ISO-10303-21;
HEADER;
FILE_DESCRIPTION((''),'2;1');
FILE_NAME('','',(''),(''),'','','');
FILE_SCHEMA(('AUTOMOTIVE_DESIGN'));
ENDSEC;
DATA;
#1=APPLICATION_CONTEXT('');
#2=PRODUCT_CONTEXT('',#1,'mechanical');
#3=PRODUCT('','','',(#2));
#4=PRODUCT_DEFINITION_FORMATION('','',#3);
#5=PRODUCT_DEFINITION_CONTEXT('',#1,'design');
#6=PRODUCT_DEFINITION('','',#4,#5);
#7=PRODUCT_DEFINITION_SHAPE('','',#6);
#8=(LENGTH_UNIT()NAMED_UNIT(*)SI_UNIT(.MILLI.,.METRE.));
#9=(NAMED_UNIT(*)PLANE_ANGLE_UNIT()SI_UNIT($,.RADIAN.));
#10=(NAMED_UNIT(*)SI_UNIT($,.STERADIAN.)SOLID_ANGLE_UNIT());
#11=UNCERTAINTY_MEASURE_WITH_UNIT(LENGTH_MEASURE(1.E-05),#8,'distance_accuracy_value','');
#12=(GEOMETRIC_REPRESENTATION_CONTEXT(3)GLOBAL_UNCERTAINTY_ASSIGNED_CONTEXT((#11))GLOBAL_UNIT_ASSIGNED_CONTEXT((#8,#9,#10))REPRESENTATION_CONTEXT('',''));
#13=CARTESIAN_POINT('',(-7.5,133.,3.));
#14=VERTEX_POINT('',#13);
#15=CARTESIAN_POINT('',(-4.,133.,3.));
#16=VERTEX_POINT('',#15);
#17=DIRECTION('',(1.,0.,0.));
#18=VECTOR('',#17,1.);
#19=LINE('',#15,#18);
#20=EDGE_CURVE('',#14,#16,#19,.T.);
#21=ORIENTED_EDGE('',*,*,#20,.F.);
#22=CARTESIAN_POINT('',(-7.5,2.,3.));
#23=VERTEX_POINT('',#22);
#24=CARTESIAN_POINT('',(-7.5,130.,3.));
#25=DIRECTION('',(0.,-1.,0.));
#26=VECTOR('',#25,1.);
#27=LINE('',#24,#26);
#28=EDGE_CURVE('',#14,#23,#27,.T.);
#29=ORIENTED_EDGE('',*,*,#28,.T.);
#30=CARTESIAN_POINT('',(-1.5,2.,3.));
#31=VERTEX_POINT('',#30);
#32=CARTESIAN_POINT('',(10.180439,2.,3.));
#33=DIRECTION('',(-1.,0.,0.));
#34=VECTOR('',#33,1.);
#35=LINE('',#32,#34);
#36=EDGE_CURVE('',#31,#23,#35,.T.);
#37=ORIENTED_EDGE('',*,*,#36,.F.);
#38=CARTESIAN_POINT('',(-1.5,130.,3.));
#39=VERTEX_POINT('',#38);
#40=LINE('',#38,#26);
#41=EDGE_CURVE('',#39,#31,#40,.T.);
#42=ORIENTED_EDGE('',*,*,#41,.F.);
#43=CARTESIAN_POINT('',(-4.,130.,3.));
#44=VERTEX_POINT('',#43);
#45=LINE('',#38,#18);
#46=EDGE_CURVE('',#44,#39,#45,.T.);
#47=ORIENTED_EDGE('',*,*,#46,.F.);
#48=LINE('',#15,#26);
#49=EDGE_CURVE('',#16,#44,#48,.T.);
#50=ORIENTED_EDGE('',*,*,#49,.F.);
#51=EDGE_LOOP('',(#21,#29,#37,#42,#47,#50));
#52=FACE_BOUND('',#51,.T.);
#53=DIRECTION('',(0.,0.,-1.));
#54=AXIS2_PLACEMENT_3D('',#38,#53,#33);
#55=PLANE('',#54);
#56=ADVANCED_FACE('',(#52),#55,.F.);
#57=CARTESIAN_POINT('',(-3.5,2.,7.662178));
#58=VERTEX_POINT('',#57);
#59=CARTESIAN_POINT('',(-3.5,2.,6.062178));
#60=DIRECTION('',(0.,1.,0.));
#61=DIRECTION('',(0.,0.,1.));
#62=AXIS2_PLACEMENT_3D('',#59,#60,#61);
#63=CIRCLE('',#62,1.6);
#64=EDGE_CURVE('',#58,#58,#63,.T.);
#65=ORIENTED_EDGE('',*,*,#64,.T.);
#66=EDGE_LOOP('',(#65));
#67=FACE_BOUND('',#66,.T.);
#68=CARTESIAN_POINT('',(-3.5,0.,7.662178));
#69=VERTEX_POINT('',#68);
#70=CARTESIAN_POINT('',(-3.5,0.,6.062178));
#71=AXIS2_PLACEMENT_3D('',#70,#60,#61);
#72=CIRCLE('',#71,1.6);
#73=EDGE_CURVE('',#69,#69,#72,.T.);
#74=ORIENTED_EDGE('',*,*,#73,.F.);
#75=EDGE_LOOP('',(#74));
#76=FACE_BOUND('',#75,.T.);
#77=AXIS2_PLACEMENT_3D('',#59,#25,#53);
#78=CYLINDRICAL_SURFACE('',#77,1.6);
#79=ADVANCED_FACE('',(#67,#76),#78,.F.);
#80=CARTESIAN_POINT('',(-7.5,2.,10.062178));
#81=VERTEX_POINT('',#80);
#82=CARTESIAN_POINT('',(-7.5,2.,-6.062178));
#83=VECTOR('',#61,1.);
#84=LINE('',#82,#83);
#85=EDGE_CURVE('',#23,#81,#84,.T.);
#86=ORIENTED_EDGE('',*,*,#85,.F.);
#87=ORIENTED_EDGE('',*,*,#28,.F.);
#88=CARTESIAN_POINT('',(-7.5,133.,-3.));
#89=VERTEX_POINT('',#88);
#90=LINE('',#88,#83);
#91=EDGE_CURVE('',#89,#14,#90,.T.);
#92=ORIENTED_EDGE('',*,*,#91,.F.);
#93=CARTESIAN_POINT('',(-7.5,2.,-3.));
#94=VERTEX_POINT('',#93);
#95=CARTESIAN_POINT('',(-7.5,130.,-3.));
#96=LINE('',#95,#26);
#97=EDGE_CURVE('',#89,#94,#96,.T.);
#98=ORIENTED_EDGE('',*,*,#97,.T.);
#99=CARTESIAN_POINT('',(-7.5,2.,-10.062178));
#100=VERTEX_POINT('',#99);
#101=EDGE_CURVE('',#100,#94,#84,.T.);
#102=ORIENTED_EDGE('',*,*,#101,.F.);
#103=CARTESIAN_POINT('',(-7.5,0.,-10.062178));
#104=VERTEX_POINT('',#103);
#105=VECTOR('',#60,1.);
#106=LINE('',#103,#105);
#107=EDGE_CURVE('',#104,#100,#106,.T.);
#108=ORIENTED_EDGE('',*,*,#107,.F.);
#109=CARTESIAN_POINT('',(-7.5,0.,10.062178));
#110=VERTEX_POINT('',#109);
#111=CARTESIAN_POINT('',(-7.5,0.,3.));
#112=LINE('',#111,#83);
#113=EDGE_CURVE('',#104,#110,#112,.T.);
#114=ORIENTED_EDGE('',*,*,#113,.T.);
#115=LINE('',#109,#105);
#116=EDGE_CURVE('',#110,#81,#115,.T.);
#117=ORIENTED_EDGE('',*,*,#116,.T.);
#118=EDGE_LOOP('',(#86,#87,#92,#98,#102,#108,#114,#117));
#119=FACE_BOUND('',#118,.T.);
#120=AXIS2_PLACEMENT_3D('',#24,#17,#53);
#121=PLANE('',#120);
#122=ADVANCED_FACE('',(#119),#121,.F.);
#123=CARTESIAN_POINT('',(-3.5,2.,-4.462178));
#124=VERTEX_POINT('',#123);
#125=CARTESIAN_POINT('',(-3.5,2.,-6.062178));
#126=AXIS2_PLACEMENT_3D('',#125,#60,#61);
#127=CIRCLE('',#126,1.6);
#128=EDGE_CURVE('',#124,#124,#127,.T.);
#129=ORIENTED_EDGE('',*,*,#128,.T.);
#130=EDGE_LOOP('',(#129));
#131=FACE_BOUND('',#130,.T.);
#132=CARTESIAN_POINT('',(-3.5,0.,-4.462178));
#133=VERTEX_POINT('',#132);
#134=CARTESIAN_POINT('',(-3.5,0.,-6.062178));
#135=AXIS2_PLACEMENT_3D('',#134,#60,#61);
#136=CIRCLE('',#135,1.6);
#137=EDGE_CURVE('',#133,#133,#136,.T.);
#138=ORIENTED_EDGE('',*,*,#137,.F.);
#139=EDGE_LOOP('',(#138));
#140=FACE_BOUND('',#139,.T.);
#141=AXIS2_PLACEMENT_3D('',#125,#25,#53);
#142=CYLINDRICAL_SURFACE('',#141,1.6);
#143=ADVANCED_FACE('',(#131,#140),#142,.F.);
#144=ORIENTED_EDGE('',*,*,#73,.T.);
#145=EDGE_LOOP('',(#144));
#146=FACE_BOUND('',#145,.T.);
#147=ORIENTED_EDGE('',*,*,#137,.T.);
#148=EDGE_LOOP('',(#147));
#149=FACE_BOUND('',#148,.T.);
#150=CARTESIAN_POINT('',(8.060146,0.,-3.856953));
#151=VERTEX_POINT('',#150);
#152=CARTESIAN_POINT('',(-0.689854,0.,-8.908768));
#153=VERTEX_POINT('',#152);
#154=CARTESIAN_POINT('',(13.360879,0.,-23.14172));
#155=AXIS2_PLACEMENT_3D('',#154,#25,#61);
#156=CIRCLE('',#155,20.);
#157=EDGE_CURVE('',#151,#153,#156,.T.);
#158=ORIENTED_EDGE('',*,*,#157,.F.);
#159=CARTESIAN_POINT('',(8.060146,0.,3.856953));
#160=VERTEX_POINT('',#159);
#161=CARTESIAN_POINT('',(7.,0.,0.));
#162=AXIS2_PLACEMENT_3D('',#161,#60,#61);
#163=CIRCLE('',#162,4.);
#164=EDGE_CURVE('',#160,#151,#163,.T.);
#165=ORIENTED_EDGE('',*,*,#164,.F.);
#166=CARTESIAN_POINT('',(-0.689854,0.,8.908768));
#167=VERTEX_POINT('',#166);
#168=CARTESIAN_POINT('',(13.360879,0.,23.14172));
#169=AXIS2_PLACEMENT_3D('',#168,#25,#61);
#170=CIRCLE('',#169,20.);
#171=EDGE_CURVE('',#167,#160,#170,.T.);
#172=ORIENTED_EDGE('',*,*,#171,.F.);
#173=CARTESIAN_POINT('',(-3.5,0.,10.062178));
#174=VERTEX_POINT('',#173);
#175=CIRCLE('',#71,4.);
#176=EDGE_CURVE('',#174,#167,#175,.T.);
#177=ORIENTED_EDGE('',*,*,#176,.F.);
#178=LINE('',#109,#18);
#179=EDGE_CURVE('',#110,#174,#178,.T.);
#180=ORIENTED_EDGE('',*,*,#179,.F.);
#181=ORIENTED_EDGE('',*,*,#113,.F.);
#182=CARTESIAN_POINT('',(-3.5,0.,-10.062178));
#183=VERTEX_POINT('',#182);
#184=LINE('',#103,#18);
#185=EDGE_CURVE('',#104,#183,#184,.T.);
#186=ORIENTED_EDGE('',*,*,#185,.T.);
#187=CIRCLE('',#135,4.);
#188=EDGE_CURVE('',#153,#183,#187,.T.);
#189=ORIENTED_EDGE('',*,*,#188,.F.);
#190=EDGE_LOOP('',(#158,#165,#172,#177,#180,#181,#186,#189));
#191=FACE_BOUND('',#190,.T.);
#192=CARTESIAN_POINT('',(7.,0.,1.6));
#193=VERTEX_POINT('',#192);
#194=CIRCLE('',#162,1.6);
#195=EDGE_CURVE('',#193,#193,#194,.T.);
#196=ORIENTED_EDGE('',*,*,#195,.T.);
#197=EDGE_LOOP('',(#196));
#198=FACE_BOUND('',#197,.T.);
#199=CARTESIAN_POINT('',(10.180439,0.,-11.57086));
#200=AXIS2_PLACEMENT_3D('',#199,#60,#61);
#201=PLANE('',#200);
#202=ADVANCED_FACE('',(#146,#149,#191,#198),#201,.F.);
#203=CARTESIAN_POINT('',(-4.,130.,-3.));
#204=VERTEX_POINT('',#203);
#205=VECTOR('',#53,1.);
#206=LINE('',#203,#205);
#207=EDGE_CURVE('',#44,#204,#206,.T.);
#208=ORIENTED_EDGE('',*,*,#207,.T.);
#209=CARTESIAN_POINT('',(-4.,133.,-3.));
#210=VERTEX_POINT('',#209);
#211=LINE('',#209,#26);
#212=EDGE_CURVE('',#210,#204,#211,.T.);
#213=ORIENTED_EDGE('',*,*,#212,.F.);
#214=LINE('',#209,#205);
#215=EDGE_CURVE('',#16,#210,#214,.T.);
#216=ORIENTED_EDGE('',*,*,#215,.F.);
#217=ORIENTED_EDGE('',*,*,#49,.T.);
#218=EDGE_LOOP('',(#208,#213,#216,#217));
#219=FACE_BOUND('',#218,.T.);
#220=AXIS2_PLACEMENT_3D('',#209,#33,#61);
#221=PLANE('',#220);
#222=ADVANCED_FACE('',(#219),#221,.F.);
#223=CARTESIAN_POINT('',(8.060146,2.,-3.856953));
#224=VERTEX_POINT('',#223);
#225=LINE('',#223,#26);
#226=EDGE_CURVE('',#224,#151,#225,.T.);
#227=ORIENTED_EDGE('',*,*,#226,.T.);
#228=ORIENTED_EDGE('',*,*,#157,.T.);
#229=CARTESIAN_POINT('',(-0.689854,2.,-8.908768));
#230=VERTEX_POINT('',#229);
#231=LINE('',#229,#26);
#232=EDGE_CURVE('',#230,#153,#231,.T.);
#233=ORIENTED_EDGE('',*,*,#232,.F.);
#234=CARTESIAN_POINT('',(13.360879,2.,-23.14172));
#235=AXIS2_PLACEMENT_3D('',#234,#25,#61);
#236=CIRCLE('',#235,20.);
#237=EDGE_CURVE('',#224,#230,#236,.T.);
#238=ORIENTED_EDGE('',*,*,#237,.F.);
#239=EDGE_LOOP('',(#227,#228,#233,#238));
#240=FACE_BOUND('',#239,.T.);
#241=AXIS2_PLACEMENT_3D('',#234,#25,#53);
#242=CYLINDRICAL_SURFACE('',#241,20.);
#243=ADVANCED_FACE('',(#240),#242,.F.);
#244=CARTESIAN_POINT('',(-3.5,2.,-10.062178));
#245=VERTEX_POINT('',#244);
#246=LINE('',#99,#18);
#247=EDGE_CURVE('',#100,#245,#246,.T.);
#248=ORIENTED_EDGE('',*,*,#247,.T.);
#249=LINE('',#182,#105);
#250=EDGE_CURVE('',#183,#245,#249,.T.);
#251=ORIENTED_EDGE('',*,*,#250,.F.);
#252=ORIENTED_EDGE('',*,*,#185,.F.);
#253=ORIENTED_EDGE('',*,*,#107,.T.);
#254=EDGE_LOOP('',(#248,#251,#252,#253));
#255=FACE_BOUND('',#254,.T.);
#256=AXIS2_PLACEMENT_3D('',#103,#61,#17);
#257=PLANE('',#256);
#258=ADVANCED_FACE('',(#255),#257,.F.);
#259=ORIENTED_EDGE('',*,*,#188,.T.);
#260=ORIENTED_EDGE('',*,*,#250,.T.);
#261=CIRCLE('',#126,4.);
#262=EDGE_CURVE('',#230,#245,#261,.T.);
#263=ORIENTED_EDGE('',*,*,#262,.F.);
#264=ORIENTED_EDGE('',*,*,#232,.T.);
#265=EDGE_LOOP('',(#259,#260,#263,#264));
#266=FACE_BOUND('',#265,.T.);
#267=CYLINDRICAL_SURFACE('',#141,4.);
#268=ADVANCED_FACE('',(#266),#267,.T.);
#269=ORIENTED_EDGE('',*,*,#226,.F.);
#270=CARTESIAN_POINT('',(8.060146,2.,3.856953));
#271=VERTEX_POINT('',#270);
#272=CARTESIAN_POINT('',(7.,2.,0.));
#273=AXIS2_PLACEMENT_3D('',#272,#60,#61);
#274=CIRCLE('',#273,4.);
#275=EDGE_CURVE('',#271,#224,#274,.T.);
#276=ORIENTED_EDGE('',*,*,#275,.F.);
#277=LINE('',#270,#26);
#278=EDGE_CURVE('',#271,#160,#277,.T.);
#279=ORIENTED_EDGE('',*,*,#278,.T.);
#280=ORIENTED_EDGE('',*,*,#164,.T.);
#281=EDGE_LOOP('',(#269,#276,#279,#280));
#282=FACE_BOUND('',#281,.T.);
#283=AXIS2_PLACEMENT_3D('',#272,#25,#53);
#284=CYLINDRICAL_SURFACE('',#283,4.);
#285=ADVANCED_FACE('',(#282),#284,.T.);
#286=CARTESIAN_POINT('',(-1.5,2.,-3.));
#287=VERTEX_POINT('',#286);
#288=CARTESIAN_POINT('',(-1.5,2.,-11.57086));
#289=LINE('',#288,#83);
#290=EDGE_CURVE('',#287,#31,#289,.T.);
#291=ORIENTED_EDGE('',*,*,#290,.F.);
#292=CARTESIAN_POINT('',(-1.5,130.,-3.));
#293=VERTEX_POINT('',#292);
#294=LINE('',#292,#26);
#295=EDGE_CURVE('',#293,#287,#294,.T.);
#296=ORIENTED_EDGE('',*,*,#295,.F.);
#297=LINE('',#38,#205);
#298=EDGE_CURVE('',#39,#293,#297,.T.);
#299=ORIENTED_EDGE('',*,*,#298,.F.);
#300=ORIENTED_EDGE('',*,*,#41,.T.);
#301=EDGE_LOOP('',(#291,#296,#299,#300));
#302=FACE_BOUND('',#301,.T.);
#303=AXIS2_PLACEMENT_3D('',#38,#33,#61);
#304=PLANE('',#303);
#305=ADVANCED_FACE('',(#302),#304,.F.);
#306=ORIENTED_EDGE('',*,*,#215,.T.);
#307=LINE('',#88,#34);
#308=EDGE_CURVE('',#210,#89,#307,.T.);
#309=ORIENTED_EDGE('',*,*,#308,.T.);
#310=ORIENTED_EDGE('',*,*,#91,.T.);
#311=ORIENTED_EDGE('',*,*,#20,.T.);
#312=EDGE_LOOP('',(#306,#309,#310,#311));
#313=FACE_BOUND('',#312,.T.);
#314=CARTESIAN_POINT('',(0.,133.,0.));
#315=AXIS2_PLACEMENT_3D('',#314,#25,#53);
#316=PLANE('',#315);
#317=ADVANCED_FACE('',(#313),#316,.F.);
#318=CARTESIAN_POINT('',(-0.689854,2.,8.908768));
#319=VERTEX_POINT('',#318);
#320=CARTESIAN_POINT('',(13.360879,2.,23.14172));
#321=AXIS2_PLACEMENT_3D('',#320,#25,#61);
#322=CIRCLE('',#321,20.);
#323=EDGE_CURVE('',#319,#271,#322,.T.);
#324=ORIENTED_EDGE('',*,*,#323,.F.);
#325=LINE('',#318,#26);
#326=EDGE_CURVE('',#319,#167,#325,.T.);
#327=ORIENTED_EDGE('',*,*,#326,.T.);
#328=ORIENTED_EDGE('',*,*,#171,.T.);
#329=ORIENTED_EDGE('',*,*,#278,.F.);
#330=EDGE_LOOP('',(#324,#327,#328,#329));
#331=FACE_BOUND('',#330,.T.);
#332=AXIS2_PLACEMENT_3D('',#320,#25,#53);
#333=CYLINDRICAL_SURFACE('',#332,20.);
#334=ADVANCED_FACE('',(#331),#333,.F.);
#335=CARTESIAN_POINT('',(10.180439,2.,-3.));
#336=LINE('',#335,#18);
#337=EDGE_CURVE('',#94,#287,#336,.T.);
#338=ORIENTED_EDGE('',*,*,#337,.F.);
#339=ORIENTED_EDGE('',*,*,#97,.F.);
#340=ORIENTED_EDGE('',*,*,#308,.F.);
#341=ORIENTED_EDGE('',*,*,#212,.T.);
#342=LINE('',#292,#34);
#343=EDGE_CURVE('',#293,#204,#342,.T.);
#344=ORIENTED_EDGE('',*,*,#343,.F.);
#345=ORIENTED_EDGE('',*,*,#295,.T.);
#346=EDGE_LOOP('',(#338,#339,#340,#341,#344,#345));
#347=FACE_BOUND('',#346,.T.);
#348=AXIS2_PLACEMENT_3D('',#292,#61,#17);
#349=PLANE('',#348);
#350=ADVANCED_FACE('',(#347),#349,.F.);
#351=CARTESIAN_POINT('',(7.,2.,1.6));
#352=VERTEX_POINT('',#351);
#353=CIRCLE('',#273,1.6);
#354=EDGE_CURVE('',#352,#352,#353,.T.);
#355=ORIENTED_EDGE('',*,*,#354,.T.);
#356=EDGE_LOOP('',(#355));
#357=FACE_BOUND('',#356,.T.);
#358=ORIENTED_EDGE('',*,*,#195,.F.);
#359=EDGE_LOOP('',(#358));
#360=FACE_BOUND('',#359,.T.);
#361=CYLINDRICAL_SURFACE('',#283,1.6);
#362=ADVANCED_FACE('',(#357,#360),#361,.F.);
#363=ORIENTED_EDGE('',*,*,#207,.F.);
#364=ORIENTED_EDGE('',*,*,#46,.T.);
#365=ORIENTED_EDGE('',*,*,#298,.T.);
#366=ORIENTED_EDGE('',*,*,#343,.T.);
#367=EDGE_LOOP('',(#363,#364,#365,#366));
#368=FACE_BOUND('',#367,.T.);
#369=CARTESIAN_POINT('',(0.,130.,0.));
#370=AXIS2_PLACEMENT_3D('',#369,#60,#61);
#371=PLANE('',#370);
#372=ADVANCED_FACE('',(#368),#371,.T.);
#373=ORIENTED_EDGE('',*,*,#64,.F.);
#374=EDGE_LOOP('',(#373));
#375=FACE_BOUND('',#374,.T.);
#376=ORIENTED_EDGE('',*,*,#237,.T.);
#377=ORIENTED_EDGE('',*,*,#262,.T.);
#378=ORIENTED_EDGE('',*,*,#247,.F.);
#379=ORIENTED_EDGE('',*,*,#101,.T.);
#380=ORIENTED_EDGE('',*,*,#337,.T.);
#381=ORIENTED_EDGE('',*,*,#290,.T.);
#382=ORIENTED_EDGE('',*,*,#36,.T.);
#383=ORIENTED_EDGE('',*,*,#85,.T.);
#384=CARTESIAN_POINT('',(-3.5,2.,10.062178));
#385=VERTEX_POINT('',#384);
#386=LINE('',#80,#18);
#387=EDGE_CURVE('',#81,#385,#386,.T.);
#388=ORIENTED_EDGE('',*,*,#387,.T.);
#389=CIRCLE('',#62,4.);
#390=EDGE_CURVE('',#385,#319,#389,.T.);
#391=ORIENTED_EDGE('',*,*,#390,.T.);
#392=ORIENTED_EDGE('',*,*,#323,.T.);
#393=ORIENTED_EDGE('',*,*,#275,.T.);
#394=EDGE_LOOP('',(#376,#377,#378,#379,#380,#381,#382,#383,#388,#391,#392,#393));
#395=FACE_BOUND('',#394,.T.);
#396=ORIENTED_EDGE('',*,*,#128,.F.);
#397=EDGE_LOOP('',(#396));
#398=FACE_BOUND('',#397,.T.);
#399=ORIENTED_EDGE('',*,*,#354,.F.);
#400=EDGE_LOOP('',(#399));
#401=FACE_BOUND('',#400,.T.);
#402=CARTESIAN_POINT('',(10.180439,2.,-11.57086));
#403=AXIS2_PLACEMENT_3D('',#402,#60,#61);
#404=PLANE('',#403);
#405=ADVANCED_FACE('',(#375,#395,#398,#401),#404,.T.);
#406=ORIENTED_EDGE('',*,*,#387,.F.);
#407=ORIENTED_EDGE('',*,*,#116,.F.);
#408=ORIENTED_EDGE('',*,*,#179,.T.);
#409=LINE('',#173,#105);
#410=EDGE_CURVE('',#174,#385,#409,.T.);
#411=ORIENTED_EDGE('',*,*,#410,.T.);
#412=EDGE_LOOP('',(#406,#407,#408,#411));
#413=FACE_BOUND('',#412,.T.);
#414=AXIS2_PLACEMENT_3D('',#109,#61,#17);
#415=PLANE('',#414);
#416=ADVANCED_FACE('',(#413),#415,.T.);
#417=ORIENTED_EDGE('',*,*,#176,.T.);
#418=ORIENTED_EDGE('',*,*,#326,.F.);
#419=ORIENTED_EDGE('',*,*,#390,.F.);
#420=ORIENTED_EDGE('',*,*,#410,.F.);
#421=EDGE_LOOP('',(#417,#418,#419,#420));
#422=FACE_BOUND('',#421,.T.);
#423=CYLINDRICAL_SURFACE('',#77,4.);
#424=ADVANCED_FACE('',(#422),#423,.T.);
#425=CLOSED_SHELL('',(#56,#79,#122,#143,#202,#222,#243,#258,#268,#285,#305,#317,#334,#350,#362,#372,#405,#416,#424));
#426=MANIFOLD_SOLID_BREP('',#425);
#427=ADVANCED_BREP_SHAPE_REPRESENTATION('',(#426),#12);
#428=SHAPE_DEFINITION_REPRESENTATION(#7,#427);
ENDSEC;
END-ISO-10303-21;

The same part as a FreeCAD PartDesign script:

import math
import FreeCAD as App
import Part
import Sketcher

V = App.Vector


def add_polygon(sketch, points):
    """Adds a closed chain of lines whose ends are joined by coincident constraints."""
    first, n = sketch.GeometryCount, len(points)
    for a, b in zip(points, points[1:] + points[:1]):
        sketch.addGeometry(Part.LineSegment(App.Vector(*a, 0), App.Vector(*b, 0)), False)
    for i in range(n):
        sketch.addConstraint(Sketcher.Constraint("Coincident", first + i, 2, first + (i + 1) % n, 1))

doc = App.newDocument("Part")
body = doc.addObject("PartDesign::Body", "Body")

# Sketch on XZ plane
sketch1 = doc.addObject("Sketcher::SketchObject", "Sketch")
body.addObject(sketch1)
sketch1.AttachmentSupport = (doc.XZ_Plane, [""])
sketch1.MapMode = "FlatFace"
sketch1.addGeometry(Part.ArcOfCircle(Part.Circle(V(7, 0, 0), V(0, 0, 1), 4), math.radians(-75), math.radians(75)), False)
sketch1.addGeometry(Part.ArcOfCircle(Part.Circle(V(13.4, -23.1, 0), V(0, 0, 1), 20), math.radians(105), math.radians(135)), False)
sketch1.addGeometry(Part.ArcOfCircle(Part.Circle(V(-3.5, -6.1, 0), V(0, 0, 1), 4), math.radians(165), math.radians(315)), False)
sketch1.addGeometry(Part.ArcOfCircle(Part.Circle(V(-26.7, 0, 0), V(0, 0, 1), 20), math.radians(-15), math.radians(15)), False)
sketch1.addGeometry(Part.ArcOfCircle(Part.Circle(V(-3.5, 6.1, 0), V(0, 0, 1), 4), math.radians(45), math.radians(195)), False)
sketch1.addGeometry(Part.ArcOfCircle(Part.Circle(V(13.4, 23.1, 0), V(0, 0, 1), 20), math.radians(-135), math.radians(-105)), False)
sketch1.addGeometry(Part.Circle(V(-3.5, 6.1, 0), V(0, 0, 1), 1.6), False)
sketch1.addGeometry(Part.Circle(V(-3.5, -6.1, 0), V(0, 0, 1), 1.6), False)
sketch1.addGeometry(Part.Circle(V(7, 0, 0), V(0, 0, 1), 1.6), False)
sketch1.addConstraint(Sketcher.Constraint("Tangent", 0, 1, 1, 1))
sketch1.addConstraint(Sketcher.Constraint("Tangent", 1, 2, 2, 2))
sketch1.addConstraint(Sketcher.Constraint("Tangent", 2, 1, 3, 1))
sketch1.addConstraint(Sketcher.Constraint("Tangent", 3, 2, 4, 2))
sketch1.addConstraint(Sketcher.Constraint("Tangent", 4, 1, 5, 1))
sketch1.addConstraint(Sketcher.Constraint("Tangent", 5, 2, 0, 2))
sketch1.addConstraint(Sketcher.Constraint("Coincident", 6, 3, 4, 3))
sketch1.addConstraint(Sketcher.Constraint("Coincident", 7, 3, 2, 3))
sketch1.addConstraint(Sketcher.Constraint("Coincident", 8, 3, 0, 3))
sketch1.addConstraint(Sketcher.Constraint("Equal", 0, 2))
sketch1.addConstraint(Sketcher.Constraint("Equal", 1, 3))
sketch1.addConstraint(Sketcher.Constraint("Equal", 2, 4))
sketch1.addConstraint(Sketcher.Constraint("Equal", 3, 5))
sketch1.addConstraint(Sketcher.Constraint("Equal", 6, 7))
sketch1.addConstraint(Sketcher.Constraint("Equal", 7, 8))
sketch1.addConstraint(Sketcher.Constraint("Symmetric", 2, 3, 4, 3, -1))
sketch1.addConstraint(Sketcher.Constraint("PointOnObject", 0, 3, -1))
sketch1.addConstraint(Sketcher.Constraint("Radius", 0, 4.0))
sketch1.addConstraint(Sketcher.Constraint("Radius", 1, 20.0))
sketch1.addConstraint(Sketcher.Constraint("Diameter", 6, 3.2))
sketch1.addConstraint(Sketcher.Constraint("DistanceX", -1, 1, 0, 3, 7.0))
sketch1.addConstraint(Sketcher.Constraint("DistanceX", 2, 3, -1, 1, 3.5))
sketch1.addConstraint(Sketcher.Constraint("DistanceY", 1, 3, 4, 3, 29.203898))
pad1 = doc.addObject("PartDesign::Pad", "Pad")
body.addObject(pad1)
pad1.Profile = sketch1
pad1.Length = 2
pad1.Reversed = True

# Sketch on XZ plane
sketch2 = doc.addObject("Sketcher::SketchObject", "Sketch001")
body.addObject(sketch2)
sketch2.AttachmentSupport = (doc.XZ_Plane, [""])
sketch2.MapMode = "FlatFace"
add_polygon(sketch2, [(-8, -3), (-8, 3), (-2, 3), (-2, -3)])  # lines 0-3
sketch2.addConstraint(Sketcher.Constraint("Vertical", 0))
sketch2.addConstraint(Sketcher.Constraint("Horizontal", 1))
sketch2.addConstraint(Sketcher.Constraint("Vertical", 2))
sketch2.addConstraint(Sketcher.Constraint("Horizontal", 3))
sketch2.addConstraint(Sketcher.Constraint("Equal", 3, 0))
sketch2.addConstraint(Sketcher.Constraint("DistanceX", 1, 1, 1, 2, 6.0))
sketch2.addConstraint(Sketcher.Constraint("DistanceY", -1, 1, 0, 2, 3.0))
sketch2.addConstraint(Sketcher.Constraint("DistanceX", 0, 2, -1, 1, 7.5))
pad2 = doc.addObject("PartDesign::Pad", "Pad001")
body.addObject(pad2)
pad2.Profile = sketch2
pad2.Length = 130
pad2.Reversed = True

# Sketch on XZ plane
sketch3 = doc.addObject("Sketcher::SketchObject", "Sketch002")
body.addObject(sketch3)
sketch3.AttachmentSupport = (doc.XZ_Plane, [""])
sketch3.MapMode = "FlatFace"
sketch3.AttachmentOffset = App.Placement(V(0, 0, -130), App.Rotation())
add_polygon(sketch3, [(-7.5, -3), (-7.5, 3), (-4, 3), (-4, -3)])  # lines 0-3
sketch3.addConstraint(Sketcher.Constraint("Vertical", 0))
sketch3.addConstraint(Sketcher.Constraint("Horizontal", 1))
sketch3.addConstraint(Sketcher.Constraint("Vertical", 2))
sketch3.addConstraint(Sketcher.Constraint("Horizontal", 3))
sketch3.addConstraint(Sketcher.Constraint("DistanceY", 0, 1, 0, 2, 6.0))
sketch3.addConstraint(Sketcher.Constraint("DistanceX", 1, 1, 1, 2, 3.5))
sketch3.addConstraint(Sketcher.Constraint("DistanceY", -1, 1, 0, 2, 3.0))
sketch3.addConstraint(Sketcher.Constraint("DistanceX", 1, 2, -1, 1, 4.0))
pad3 = doc.addObject("PartDesign::Pad", "Pad002")
body.addObject(pad3)
pad3.Profile = sketch3
pad3.Length = 3
pad3.Reversed = True

# Sketch on XZ plane
sketch4 = doc.addObject("Sketcher::SketchObject", "Sketch003")
body.addObject(sketch4)
sketch4.AttachmentSupport = (doc.XZ_Plane, [""])
sketch4.MapMode = "FlatFace"
sketch4.AttachmentOffset = App.Placement(V(0, 0, -2), App.Rotation())
add_polygon(sketch4, [(-7.5, 10.1), (-3.5, 10.1), (-6.3, 8.1), (-6.3, -5.7), (-3.5, -10.1), (-7.5, -10.1)])  # lines 0-5
sketch4.addConstraint(Sketcher.Constraint("Horizontal", 0))
sketch4.addConstraint(Sketcher.Constraint("Vertical", 2))
sketch4.addConstraint(Sketcher.Constraint("Horizontal", 4))
sketch4.addConstraint(Sketcher.Constraint("Vertical", 5))
sketch4.addConstraint(Sketcher.Constraint("Symmetric", 0, 2, 3, 2, -1))
sketch4.addConstraint(Sketcher.Constraint("DistanceX", 0, 1, 0, 2, 4.0))
sketch4.addConstraint(Sketcher.Constraint("DistanceX", 0, 2, -1, 1, 3.5))
sketch4.addConstraint(Sketcher.Constraint("DistanceY", 2, 2, 2, 1, 13.792149))
sketch4.addConstraint(Sketcher.Constraint("DistanceY", 2, 2, 0, 2, 15.7894))
sketch4.addConstraint(Sketcher.Constraint("DistanceY", 5, 1, 5, 2, 20.124356))
sketch4.addConstraint(Sketcher.Constraint("DistanceX", 1, 2, -1, 1, 6.27689))
pad4 = doc.addObject("PartDesign::Pad", "Pad003")
body.addObject(pad4)
pad4.Profile = sketch4
pad4.Length = 2

doc.recompute()
